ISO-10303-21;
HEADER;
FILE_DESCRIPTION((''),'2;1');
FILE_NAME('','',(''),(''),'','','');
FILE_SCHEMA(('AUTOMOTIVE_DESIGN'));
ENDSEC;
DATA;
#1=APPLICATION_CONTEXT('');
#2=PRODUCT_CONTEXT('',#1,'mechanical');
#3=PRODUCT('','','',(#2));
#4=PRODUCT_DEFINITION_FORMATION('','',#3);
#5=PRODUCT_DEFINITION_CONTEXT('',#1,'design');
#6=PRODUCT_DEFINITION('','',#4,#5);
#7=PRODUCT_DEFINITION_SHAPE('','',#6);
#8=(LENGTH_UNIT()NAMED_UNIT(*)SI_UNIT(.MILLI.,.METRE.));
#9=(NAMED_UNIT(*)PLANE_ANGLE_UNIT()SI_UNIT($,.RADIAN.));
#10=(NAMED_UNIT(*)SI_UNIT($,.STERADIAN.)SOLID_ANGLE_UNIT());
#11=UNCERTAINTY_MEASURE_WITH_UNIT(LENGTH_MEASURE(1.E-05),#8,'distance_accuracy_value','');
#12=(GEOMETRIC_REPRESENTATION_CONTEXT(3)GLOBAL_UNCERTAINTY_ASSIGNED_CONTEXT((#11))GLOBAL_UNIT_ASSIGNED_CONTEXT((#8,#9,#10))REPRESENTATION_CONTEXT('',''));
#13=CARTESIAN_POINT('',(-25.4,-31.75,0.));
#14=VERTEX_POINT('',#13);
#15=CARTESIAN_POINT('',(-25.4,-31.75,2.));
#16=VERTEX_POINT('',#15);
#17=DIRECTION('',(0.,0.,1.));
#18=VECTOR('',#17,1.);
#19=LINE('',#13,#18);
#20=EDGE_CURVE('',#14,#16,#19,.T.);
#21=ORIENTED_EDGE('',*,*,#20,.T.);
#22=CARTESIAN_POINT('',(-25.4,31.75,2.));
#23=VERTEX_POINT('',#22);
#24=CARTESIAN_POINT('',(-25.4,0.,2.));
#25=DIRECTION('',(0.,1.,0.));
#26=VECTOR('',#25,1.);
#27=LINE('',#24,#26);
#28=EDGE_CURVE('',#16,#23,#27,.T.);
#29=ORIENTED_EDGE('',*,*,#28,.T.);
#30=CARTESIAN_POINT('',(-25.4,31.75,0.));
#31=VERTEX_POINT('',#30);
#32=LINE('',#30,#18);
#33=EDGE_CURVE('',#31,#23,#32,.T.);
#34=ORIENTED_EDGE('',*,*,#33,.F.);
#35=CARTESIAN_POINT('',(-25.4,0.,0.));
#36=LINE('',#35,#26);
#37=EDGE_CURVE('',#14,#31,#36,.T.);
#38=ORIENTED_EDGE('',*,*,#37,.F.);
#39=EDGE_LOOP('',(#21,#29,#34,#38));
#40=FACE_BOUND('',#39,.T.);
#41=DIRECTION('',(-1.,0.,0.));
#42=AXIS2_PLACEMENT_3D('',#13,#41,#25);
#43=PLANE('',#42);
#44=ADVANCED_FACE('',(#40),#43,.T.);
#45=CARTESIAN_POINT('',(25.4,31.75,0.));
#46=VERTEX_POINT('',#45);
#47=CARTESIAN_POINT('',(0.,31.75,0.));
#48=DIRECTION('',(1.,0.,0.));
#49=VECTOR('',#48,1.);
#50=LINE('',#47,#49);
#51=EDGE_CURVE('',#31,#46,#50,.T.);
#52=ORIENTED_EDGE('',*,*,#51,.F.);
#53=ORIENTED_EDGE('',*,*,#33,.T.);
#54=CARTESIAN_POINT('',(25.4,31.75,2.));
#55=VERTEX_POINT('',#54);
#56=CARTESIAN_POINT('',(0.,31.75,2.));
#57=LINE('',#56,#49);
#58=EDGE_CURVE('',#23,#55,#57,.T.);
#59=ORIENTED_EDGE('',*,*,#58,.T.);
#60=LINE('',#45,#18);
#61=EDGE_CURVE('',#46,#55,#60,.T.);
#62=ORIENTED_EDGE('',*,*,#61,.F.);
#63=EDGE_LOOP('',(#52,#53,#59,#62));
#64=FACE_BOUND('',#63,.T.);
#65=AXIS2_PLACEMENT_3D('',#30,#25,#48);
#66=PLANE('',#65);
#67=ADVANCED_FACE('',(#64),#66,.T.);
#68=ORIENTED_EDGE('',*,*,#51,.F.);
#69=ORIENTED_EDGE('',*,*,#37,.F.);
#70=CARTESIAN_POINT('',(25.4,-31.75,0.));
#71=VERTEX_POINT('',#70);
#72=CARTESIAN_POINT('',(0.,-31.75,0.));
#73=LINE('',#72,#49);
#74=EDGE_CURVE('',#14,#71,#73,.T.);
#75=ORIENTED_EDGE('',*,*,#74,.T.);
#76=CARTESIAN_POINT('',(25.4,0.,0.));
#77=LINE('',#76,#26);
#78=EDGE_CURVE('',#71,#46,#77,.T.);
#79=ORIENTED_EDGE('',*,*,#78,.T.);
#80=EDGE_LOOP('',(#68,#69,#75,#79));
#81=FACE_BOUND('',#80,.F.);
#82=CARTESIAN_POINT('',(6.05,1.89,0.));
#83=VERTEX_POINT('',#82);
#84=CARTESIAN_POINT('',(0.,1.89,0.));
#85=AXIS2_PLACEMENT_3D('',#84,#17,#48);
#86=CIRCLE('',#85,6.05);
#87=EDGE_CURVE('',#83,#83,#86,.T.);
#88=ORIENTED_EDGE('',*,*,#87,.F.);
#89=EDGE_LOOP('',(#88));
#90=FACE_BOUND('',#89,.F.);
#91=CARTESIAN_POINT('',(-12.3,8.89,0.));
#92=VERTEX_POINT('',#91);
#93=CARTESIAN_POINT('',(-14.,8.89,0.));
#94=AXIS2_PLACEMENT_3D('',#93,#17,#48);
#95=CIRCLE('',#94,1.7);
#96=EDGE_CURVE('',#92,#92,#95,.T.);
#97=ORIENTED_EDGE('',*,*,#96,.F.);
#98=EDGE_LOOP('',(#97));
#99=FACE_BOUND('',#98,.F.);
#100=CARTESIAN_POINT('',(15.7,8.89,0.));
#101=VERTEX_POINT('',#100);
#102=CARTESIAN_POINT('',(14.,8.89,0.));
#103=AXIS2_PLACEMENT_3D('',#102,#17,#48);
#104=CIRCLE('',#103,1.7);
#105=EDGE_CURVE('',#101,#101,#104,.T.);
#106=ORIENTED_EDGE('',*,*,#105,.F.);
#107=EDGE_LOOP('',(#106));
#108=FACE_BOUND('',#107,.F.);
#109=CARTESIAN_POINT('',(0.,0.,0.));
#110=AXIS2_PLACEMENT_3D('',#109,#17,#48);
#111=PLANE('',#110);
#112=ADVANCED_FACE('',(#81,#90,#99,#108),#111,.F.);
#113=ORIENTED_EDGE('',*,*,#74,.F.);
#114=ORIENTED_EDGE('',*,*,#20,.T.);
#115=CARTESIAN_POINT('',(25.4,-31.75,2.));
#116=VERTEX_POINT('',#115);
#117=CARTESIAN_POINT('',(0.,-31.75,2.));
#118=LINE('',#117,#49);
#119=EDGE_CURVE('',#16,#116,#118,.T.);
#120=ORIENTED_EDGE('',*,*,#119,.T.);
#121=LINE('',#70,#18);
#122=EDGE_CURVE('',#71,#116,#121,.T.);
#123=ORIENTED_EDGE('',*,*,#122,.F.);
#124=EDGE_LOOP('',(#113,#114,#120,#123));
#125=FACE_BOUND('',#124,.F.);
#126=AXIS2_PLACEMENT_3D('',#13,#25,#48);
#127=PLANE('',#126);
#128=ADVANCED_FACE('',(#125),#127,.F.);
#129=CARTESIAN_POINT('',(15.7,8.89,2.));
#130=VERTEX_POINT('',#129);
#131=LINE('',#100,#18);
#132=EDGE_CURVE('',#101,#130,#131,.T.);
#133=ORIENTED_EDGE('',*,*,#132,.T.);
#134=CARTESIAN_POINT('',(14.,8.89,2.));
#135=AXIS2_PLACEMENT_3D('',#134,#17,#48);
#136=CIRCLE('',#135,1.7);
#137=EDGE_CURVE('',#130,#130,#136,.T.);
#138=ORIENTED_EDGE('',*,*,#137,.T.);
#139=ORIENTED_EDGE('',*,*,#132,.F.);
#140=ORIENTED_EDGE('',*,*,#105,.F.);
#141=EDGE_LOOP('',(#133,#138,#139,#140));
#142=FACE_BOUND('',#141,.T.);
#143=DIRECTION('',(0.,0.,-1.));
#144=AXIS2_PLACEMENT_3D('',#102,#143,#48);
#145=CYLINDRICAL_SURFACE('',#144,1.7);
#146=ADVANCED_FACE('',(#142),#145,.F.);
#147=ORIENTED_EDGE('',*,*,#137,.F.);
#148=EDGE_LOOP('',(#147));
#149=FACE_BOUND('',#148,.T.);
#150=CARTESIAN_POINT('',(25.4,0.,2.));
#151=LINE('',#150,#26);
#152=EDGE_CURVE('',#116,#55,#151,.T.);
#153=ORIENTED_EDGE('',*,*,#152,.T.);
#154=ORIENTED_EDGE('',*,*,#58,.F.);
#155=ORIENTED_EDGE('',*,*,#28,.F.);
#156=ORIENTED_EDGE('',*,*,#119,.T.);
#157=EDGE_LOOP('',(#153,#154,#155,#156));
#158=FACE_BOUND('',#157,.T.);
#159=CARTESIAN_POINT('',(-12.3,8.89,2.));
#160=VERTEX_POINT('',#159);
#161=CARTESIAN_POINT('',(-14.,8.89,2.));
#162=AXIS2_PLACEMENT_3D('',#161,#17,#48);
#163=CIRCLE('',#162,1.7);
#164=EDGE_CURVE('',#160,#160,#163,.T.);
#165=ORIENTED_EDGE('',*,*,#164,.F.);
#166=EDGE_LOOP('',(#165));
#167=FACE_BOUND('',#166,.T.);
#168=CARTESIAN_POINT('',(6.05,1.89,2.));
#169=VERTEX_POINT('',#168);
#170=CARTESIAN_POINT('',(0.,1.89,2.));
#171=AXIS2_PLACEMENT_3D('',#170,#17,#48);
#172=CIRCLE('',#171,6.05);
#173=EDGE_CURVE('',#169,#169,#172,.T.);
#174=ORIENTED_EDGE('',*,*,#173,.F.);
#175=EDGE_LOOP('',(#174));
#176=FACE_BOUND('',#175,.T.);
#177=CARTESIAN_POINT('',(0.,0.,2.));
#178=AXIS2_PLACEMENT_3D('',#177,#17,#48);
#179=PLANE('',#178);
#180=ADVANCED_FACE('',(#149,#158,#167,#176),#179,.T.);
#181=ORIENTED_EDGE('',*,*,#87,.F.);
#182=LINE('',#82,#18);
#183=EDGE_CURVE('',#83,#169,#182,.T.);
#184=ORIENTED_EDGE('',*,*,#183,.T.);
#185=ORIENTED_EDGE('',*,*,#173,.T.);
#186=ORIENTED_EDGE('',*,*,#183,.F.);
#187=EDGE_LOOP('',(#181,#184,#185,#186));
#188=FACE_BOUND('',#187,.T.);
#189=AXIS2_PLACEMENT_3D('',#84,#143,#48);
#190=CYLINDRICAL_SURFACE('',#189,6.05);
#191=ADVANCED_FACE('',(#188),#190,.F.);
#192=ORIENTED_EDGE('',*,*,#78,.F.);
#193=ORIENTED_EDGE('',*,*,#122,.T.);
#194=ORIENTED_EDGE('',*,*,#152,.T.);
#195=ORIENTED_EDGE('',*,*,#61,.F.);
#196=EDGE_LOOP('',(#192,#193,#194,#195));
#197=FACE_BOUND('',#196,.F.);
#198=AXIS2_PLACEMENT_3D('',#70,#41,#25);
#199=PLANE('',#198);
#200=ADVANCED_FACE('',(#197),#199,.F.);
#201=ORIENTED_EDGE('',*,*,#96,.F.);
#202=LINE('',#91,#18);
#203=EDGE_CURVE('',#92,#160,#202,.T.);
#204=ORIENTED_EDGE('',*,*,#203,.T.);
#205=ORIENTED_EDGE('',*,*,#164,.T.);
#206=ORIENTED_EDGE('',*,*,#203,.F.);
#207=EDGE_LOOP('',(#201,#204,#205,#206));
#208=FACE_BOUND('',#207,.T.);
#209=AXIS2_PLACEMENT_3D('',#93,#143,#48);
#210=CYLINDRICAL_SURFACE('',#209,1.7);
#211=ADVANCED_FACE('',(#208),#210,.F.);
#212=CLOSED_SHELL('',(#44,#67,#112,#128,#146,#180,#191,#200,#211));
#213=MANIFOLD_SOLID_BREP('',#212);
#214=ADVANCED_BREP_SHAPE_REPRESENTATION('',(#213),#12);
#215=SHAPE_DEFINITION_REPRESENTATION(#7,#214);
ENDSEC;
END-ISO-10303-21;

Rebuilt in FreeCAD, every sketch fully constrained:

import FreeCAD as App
import Part
import Sketcher
Q = App.Units.Quantity


def add_polygon(sketch, points):
    """Adds a closed chain of lines whose ends are joined by coincident constraints."""
    first, n = sketch.GeometryCount, len(points)
    for a, b in zip(points, points[1:] + points[:1]):
        sketch.addGeometry(Part.LineSegment(App.Vector(*a, 0), App.Vector(*b, 0)), False)
    for i in range(n):
        sketch.addConstraint(Sketcher.Constraint("Coincident", first + i, 2, first + (i + 1) % n, 1))

doc = App.newDocument("Part")
body = doc.addObject("PartDesign::Body", "Body")

sketch1 = doc.addObject("Sketcher::SketchObject", "Sketch")
body.addObject(sketch1)
sketch1.AttachmentSupport = (doc.XY_Plane, [""])
sketch1.MapMode = "FlatFace"
add_polygon(sketch1, [(-25.4, 31.8), (-25.4, -31.8), (25.4, -31.8), (25.4, 31.8)])
sketch1.addGeometry(Part.Circle(App.Vector(0, 1.9, 0), App.Vector(0, 0, 1), 6), False)
sketch1.addGeometry(Part.Circle(App.Vector(-14, 8.9, 0), App.Vector(0, 0, 1), 1.7), False)
sketch1.addGeometry(Part.Circle(App.Vector(14, 8.9, 0), App.Vector(0, 0, 1), 1.7), False)
sketch1.addConstraint([
    Sketcher.Constraint("Vertical", 0),
    Sketcher.Constraint("Horizontal", 1),
    Sketcher.Constraint("Vertical", 2),
    Sketcher.Constraint("Horizontal", 3),
    Sketcher.Constraint("Equal", 5, 6),
    Sketcher.Constraint("Symmetric", 0, 2, 2, 2, -1, 1),
    Sketcher.Constraint("Symmetric", 5, 3, 6, 3, -2),
    Sketcher.Constraint("PointOnObject", 4, 3, -2),
    Sketcher.Constraint("Diameter", 4, Q("12.1 mm")),
    Sketcher.Constraint("Diameter", 5, Q("3.4 mm")),
    Sketcher.Constraint("DistanceX", 1, 1, 1, 2, Q("50.8 mm")),
    Sketcher.Constraint("DistanceY", 0, 2, 0, 1, Q("63.5 mm")),
    Sketcher.Constraint("DistanceX", 5, 3, -1, 1, Q("14 mm")),
    Sketcher.Constraint("DistanceY", 4, 3, 5, 3, Q("7 mm")),
    Sketcher.Constraint("DistanceY", -1, 1, 4, 3, Q("1.89 mm")),
])
pad1 = doc.addObject("PartDesign::Pad", "Pad")
body.addObject(pad1)
pad1.Profile = sketch1
pad1.Length = 2

doc.recompute()
